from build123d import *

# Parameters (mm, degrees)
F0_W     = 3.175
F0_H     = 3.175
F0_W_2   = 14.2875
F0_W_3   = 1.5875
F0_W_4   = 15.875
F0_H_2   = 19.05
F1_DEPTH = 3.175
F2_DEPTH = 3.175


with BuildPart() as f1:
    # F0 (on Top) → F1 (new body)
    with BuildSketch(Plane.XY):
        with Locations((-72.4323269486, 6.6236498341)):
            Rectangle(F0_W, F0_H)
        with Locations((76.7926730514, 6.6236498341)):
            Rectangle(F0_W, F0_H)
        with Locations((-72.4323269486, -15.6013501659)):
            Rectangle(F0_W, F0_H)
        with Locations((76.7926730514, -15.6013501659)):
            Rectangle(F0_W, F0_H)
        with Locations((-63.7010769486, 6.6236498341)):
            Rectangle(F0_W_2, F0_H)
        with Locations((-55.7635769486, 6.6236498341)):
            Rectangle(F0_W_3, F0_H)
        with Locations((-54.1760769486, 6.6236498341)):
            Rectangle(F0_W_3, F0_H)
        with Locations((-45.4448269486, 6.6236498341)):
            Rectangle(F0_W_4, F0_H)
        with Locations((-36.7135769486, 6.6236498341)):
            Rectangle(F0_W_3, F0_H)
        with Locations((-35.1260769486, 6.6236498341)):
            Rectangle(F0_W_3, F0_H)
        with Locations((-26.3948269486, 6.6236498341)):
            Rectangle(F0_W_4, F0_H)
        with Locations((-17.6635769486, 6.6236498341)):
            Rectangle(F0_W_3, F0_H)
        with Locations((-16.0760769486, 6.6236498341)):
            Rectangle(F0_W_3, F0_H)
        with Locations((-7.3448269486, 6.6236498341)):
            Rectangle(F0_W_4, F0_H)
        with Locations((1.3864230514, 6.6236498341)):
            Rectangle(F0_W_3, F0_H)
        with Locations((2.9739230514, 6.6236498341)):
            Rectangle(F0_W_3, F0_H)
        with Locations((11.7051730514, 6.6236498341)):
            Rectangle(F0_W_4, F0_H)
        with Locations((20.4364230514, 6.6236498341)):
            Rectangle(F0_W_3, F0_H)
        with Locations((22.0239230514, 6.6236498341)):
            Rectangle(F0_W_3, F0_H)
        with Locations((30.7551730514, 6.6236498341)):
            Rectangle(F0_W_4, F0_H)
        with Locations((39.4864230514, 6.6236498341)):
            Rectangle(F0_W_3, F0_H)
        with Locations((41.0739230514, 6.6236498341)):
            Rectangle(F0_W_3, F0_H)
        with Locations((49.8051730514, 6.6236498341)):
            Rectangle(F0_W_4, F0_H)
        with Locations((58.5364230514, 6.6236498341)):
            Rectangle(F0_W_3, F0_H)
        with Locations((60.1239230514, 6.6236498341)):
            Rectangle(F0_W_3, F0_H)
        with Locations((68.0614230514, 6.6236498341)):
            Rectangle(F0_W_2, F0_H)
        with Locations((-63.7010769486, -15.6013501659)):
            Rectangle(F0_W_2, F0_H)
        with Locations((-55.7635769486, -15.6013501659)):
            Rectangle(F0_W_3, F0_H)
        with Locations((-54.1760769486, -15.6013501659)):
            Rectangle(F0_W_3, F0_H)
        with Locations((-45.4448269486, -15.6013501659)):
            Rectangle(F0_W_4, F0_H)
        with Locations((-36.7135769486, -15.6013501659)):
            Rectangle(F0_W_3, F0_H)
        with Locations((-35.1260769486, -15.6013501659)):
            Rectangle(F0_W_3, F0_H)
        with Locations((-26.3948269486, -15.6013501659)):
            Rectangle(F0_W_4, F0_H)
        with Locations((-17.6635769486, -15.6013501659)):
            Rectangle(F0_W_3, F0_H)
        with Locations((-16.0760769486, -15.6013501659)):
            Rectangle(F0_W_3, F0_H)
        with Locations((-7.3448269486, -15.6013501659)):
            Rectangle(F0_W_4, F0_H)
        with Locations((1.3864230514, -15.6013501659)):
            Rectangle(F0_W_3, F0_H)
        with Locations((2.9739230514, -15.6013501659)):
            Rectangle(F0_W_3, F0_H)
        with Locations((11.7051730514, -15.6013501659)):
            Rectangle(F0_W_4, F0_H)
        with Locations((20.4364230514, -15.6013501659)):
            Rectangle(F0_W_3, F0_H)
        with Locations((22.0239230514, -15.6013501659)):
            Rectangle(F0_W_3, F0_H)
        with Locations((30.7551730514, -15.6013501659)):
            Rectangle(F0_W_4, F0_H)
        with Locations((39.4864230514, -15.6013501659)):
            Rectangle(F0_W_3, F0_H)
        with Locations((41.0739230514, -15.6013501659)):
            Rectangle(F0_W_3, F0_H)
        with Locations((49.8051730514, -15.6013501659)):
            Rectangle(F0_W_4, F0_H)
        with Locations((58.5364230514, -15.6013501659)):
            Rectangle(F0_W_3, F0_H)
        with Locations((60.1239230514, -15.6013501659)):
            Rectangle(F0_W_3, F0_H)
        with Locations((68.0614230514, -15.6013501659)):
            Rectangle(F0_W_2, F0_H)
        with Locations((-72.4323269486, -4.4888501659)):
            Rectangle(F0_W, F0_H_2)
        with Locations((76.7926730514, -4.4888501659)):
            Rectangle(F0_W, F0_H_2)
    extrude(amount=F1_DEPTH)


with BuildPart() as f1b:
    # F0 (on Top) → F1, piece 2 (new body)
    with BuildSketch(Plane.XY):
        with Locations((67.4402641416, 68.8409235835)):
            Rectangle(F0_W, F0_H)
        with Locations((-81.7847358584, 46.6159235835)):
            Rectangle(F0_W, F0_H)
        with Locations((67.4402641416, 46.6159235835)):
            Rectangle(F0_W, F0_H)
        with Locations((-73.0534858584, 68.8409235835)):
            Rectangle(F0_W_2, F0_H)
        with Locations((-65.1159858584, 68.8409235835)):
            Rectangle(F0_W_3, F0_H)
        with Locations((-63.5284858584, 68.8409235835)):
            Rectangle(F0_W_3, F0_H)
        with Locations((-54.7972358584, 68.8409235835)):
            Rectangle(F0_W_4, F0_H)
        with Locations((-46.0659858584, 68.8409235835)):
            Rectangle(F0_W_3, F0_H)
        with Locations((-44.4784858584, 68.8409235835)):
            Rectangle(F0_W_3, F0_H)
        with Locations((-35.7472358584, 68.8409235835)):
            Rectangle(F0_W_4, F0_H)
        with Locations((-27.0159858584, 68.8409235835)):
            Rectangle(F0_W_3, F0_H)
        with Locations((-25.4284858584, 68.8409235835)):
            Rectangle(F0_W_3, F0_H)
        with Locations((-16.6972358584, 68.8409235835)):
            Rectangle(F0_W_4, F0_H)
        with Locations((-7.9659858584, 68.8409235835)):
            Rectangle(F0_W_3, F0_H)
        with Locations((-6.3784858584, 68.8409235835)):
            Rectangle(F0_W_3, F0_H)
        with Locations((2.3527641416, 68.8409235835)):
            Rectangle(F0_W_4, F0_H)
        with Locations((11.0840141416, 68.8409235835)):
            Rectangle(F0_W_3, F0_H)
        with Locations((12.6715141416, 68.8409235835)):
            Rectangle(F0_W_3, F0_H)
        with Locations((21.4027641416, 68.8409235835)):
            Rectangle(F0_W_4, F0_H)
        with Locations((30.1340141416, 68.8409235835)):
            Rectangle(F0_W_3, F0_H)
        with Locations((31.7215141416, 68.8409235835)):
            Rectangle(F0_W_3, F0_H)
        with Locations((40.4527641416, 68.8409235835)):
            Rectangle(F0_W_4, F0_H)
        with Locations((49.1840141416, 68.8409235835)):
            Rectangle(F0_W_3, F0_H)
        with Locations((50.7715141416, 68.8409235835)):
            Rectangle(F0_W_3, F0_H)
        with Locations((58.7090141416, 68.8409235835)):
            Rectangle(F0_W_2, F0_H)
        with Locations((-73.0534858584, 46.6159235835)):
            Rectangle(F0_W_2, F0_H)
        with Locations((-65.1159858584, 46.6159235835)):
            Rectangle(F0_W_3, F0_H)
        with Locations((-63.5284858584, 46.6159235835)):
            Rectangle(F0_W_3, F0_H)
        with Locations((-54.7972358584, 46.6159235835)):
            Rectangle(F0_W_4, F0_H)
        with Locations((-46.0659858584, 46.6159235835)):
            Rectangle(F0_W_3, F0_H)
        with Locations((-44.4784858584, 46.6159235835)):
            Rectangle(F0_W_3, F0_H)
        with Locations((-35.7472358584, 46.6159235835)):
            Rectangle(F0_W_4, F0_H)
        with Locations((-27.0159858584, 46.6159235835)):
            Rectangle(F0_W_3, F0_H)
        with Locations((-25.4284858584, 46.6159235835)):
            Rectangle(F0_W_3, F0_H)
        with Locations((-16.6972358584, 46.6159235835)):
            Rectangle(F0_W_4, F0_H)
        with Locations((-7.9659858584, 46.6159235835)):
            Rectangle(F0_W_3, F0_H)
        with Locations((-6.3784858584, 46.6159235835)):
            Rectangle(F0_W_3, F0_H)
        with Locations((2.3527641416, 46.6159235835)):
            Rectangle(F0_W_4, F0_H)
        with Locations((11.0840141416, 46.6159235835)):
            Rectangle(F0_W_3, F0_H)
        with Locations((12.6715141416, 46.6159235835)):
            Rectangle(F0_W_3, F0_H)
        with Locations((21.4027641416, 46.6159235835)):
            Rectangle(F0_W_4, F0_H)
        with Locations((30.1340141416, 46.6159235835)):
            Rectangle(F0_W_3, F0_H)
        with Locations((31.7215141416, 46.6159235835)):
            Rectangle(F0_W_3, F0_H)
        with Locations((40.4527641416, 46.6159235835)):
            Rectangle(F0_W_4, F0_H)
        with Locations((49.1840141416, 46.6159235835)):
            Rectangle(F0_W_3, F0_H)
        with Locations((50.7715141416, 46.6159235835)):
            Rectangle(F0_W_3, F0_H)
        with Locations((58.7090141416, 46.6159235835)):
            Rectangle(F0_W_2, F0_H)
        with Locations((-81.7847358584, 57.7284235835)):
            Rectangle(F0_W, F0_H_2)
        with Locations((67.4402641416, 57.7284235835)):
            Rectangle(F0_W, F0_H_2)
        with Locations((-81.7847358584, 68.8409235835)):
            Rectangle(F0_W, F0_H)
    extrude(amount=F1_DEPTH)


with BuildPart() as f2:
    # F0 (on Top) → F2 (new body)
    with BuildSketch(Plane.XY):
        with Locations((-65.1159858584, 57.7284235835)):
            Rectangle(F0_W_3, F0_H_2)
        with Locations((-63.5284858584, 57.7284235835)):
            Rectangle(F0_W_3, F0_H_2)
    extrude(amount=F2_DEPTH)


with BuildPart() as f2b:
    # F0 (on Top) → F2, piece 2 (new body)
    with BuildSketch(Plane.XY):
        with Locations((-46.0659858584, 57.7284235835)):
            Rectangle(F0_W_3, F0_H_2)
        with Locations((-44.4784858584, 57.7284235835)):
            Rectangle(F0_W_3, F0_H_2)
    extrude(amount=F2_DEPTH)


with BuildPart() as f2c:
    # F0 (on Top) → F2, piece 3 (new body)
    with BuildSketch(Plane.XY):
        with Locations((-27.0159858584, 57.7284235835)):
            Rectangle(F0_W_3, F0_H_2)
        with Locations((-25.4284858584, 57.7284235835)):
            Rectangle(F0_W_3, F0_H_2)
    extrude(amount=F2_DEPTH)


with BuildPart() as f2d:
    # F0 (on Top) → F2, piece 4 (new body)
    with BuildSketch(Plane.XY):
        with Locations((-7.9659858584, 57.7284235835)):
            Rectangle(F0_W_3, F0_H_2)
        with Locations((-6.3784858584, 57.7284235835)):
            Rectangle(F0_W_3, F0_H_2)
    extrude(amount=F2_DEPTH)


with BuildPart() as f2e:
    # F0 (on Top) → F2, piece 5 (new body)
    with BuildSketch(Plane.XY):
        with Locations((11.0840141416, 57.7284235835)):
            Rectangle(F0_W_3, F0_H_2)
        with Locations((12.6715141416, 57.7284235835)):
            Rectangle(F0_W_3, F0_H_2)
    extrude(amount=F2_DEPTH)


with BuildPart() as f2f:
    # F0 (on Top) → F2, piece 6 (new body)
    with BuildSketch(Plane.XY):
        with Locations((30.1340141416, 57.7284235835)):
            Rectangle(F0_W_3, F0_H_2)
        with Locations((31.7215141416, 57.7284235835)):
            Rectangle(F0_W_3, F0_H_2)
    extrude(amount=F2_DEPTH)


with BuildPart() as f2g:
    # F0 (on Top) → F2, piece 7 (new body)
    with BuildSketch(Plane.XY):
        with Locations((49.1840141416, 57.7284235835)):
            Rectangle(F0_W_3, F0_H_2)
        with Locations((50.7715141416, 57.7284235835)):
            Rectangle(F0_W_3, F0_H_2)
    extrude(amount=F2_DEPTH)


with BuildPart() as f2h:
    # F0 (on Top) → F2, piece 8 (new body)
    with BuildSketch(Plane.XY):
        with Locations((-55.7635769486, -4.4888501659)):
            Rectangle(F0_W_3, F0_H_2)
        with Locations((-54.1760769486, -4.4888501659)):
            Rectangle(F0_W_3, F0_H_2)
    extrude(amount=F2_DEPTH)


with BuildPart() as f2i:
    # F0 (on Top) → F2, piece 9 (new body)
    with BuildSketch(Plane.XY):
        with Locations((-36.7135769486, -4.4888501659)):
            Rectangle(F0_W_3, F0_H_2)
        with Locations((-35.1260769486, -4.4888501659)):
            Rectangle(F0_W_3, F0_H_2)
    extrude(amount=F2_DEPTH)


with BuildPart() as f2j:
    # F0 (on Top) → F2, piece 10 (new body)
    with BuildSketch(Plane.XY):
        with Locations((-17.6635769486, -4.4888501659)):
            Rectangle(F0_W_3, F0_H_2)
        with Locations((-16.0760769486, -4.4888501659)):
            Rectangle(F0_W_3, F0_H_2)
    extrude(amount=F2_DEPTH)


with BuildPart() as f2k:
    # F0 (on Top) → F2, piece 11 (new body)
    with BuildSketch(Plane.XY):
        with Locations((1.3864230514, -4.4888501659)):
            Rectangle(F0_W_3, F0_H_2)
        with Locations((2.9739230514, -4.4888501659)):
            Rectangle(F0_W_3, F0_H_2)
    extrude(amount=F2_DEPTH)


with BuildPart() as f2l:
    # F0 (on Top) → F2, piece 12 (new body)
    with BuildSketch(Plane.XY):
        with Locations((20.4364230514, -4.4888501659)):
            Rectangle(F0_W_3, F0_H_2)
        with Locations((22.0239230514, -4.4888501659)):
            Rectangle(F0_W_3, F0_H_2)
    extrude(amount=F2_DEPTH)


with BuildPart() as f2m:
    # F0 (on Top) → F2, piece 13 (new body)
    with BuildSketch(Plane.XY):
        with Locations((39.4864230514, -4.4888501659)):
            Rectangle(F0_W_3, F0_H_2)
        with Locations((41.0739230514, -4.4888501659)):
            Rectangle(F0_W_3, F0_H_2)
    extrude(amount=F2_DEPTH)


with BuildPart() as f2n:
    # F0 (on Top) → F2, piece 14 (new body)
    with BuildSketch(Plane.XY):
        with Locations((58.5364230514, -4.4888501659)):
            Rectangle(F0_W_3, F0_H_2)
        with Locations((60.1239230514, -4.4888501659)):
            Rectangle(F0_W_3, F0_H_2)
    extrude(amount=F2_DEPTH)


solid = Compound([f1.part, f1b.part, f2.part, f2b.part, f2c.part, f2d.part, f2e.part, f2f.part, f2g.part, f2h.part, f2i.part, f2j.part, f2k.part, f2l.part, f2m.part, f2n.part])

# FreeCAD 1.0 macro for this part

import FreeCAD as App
import Part
import Sketcher
Q = App.Units.Quantity


def add_polygon(sketch, points):
    """Adds a closed chain of lines whose ends are joined by coincident constraints."""
    first, n = sketch.GeometryCount, len(points)
    for a, b in zip(points, points[1:] + points[:1]):
        sketch.addGeometry(Part.LineSegment(App.Vector(*a, 0), App.Vector(*b, 0)), False)
    for i in range(n):
        sketch.addConstraint(Sketcher.Constraint("Coincident", first + i, 2, first + (i + 1) % n, 1))

doc = App.newDocument("Part")
body = doc.addObject("PartDesign::Body", "Body")

# Sketch on XY plane
sketch1 = body.newObject("Sketcher::SketchObject", "Sketch")
sketch1.AttachmentSupport = (doc.getObject("XY_Plane"), [""])
sketch1.MapMode = "FlatFace"
add_polygon(sketch1, [(-74.019827, 8.21115), (-74.019827, -17.18885), (78.380173, -17.18885), (78.380173, 8.21115)])  # lines 0-3
add_polygon(sketch1, [(75.205173, -14.01385), (-70.844827, -14.01385), (-70.844827, 5.03615), (75.205173, 5.03615)])  # lines 4-7
sketch1.addConstraint([
    Sketcher.Constraint("Vertical", 0),
    Sketcher.Constraint("Horizontal", 1),
    Sketcher.Constraint("Vertical", 2),
    Sketcher.Constraint("Horizontal", 3),
    Sketcher.Constraint("Horizontal", 4),
    Sketcher.Constraint("Vertical", 5),
    Sketcher.Constraint("Horizontal", 6),
    Sketcher.Constraint("Vertical", 7),
    Sketcher.Constraint("DistanceX", 1, 1, 1, 2, Q("6 in")),
    Sketcher.Constraint("DistanceY", 0, 2, 0, 1, Q("1 in")),
    Sketcher.Constraint("DistanceX", 4, 2, 4, 1, Q("5.75 in")),
    Sketcher.Constraint("DistanceY", 5, 1, 5, 2, Q("0.75 in")),
    Sketcher.Constraint("DistanceX", 0, 2, 4, 2, Q("0.125 in")),
    Sketcher.Constraint("DistanceY", 0, 2, 4, 2, Q("0.125 in")),
    Sketcher.Constraint("DistanceY", 0, 2, -1, 1, Q("17.18885 mm")),
    Sketcher.Constraint("DistanceX", 0, 2, -1, 1, Q("74.019827 mm")),
])
pad1 = body.newObject("PartDesign::Pad", "Pad")
pad1.Profile = sketch1
pad1.Length = Q("0.125 in")
body2 = doc.addObject("PartDesign::Body", "Body001")

# Sketch on XY plane
sketch2 = body2.newObject("Sketcher::SketchObject", "Sketch001")
sketch2.AttachmentSupport = (doc.getObject("XY_Plane001"), [""])
sketch2.MapMode = "FlatFace"
add_polygon(sketch2, [(69.027764, 70.428424), (-83.372236, 70.428424), (-83.372236, 45.028424), (69.027764, 45.028424)])  # lines 0-3
add_polygon(sketch2, [(-80.197236, 48.203424), (-80.197236, 67.253424), (65.852764, 67.253424), (65.852764, 48.203424)])  # lines 4-7
sketch2.addConstraint([
    Sketcher.Constraint("Horizontal", 0),
    Sketcher.Constraint("Vertical", 1),
    Sketcher.Constraint("Horizontal", 2),
    Sketcher.Constraint("Vertical", 3),
    Sketcher.Constraint("Vertical", 4),
    Sketcher.Constraint("Horizontal", 5),
    Sketcher.Constraint("Vertical", 6),
    Sketcher.Constraint("Horizontal", 7),
    Sketcher.Constraint("DistanceX", 0, 2, 0, 1, Q("6 in")),
    Sketcher.Constraint("DistanceY", 1, 2, 1, 1, Q("1 in")),
    Sketcher.Constraint("DistanceX", 5, 1, 5, 2, Q("5.75 in")),
    Sketcher.Constraint("DistanceY", 4, 1, 4, 2, Q("0.75 in")),
    Sketcher.Constraint("DistanceX", 0, 2, 4, 2, Q("0.125 in")),
    Sketcher.Constraint("DistanceY", 4, 2, 0, 2, Q("0.125 in")),
    Sketcher.Constraint("DistanceX", 0, 2, -1, 1, Q("83.372236 mm")),
    Sketcher.Constraint("DistanceY", -1, 1, 0, 2, Q("70.428424 mm")),
])
pad2 = body2.newObject("PartDesign::Pad", "Pad001")
pad2.Profile = sketch2
pad2.Length = Q("0.125 in")
body3 = doc.addObject("PartDesign::Body", "Body002")

# Sketch on XY plane
sketch3 = body3.newObject("Sketcher::SketchObject", "Sketch002")
sketch3.AttachmentSupport = (doc.getObject("XY_Plane002"), [""])
sketch3.MapMode = "FlatFace"
add_polygon(sketch3, [(-65.909736, 67.253424), (-65.909736, 48.203424), (-62.734736, 48.203424), (-62.734736, 67.253424)])  # lines 0-3
sketch3.addConstraint([
    Sketcher.Constraint("Vertical", 0),
    Sketcher.Constraint("Horizontal", 1),
    Sketcher.Constraint("Vertical", 2),
    Sketcher.Constraint("Horizontal", 3),
    Sketcher.Constraint("DistanceY", 0, 2, 0, 1, Q("0.75 in")),
    Sketcher.Constraint("DistanceX", 1, 1, 1, 2, Q("0.125 in")),
    Sketcher.Constraint("DistanceX", 0, 2, -1, 1, Q("65.909736 mm")),
    Sketcher.Constraint("DistanceY", -1, 1, 0, 2, Q("48.203424 mm")),
])
pad3 = body3.newObject("PartDesign::Pad", "Pad002")
pad3.Profile = sketch3
pad3.Length = Q("0.125 in")
body4 = doc.addObject("PartDesign::Body", "Body003")

# Sketch on XY plane
sketch4 = body4.newObject("Sketcher::SketchObject", "Sketch003")
sketch4.AttachmentSupport = (doc.getObject("XY_Plane003"), [""])
sketch4.MapMode = "FlatFace"
add_polygon(sketch4, [(-46.859736, 67.253424), (-46.859736, 48.203424), (-43.684736, 48.203424), (-43.684736, 67.253424)])  # lines 0-3
sketch4.addConstraint([
    Sketcher.Constraint("Vertical", 0),
    Sketcher.Constraint("Horizontal", 1),
    Sketcher.Constraint("Vertical", 2),
    Sketcher.Constraint("Horizontal", 3),
    Sketcher.Constraint("DistanceY", 0, 2, 0, 1, Q("0.75 in")),
    Sketcher.Constraint("DistanceX", 1, 1, 1, 2, Q("0.125 in")),
    Sketcher.Constraint("DistanceX", 0, 2, -1, 1, Q("46.859736 mm")),
    Sketcher.Constraint("DistanceY", -1, 1, 0, 2, Q("48.203424 mm")),
])
pad4 = body4.newObject("PartDesign::Pad", "Pad003")
pad4.Profile = sketch4
pad4.Length = Q("0.125 in")
body5 = doc.addObject("PartDesign::Body", "Body004")

# Sketch on XY plane
sketch5 = body5.newObject("Sketcher::SketchObject", "Sketch004")
sketch5.AttachmentSupport = (doc.getObject("XY_Plane004"), [""])
sketch5.MapMode = "FlatFace"
add_polygon(sketch5, [(-27.809736, 67.253424), (-27.809736, 48.203424), (-24.634736, 48.203424), (-24.634736, 67.253424)])  # lines 0-3
sketch5.addConstraint([
    Sketcher.Constraint("Vertical", 0),
    Sketcher.Constraint("Horizontal", 1),
    Sketcher.Constraint("Vertical", 2),
    Sketcher.Constraint("Horizontal", 3),
    Sketcher.Constraint("DistanceY", 0, 2, 0, 1, Q("0.75 in")),
    Sketcher.Constraint("DistanceX", 1, 1, 1, 2, Q("0.125 in")),
    Sketcher.Constraint("DistanceX", 0, 2, -1, 1, Q("27.809736 mm")),
    Sketcher.Constraint("DistanceY", -1, 1, 0, 2, Q("48.203424 mm")),
])
pad5 = body5.newObject("PartDesign::Pad", "Pad004")
pad5.Profile = sketch5
pad5.Length = Q("0.125 in")
body6 = doc.addObject("PartDesign::Body", "Body005")

# Sketch on XY plane
sketch6 = body6.newObject("Sketcher::SketchObject", "Sketch005")
sketch6.AttachmentSupport = (doc.getObject("XY_Plane005"), [""])
sketch6.MapMode = "FlatFace"
add_polygon(sketch6, [(-8.759736, 67.253424), (-8.759736, 48.203424), (-5.584736, 48.203424), (-5.584736, 67.253424)])  # lines 0-3
sketch6.addConstraint([
    Sketcher.Constraint("Vertical", 0),
    Sketcher.Constraint("Horizontal", 1),
    Sketcher.Constraint("Vertical", 2),
    Sketcher.Constraint("Horizontal", 3),
    Sketcher.Constraint("DistanceY", 0, 2, 0, 1, Q("0.75 in")),
    Sketcher.Constraint("DistanceX", 1, 1, 1, 2, Q("0.125 in")),
    Sketcher.Constraint("DistanceX", 0, 2, -1, 1, Q("8.759736 mm")),
    Sketcher.Constraint("DistanceY", -1, 1, 0, 2, Q("48.203424 mm")),
])
pad6 = body6.newObject("PartDesign::Pad", "Pad005")
pad6.Profile = sketch6
pad6.Length = Q("0.125 in")
body7 = doc.addObject("PartDesign::Body", "Body006")

# Sketch on XY plane
sketch7 = body7.newObject("Sketcher::SketchObject", "Sketch006")
sketch7.AttachmentSupport = (doc.getObject("XY_Plane006"), [""])
sketch7.MapMode = "FlatFace"
add_polygon(sketch7, [(10.290264, 67.253424), (10.290264, 48.203424), (13.465264, 48.203424), (13.465264, 67.253424)])  # lines 0-3
sketch7.addConstraint([
    Sketcher.Constraint("Vertical", 0),
    Sketcher.Constraint("Horizontal", 1),
    Sketcher.Constraint("Vertical", 2),
    Sketcher.Constraint("Horizontal", 3),
    Sketcher.Constraint("DistanceY", 0, 2, 0, 1, Q("0.75 in")),
    Sketcher.Constraint("DistanceX", 1, 1, 1, 2, Q("0.125 in")),
    Sketcher.Constraint("DistanceX", -1, 1, 0, 2, Q("10.290264 mm")),
    Sketcher.Constraint("DistanceY", -1, 1, 0, 2, Q("48.203424 mm")),
])
pad7 = body7.newObject("PartDesign::Pad", "Pad006")
pad7.Profile = sketch7
pad7.Length = Q("0.125 in")
body8 = doc.addObject("PartDesign::Body", "Body007")

# Sketch on XY plane
sketch8 = body8.newObject("Sketcher::SketchObject", "Sketch007")
sketch8.AttachmentSupport = (doc.getObject("XY_Plane007"), [""])
sketch8.MapMode = "FlatFace"
add_polygon(sketch8, [(29.340264, 67.253424), (29.340264, 48.203424), (32.515264, 48.203424), (32.515264, 67.253424)])  # lines 0-3
sketch8.addConstraint([
    Sketcher.Constraint("Vertical", 0),
    Sketcher.Constraint("Horizontal", 1),
    Sketcher.Constraint("Vertical", 2),
    Sketcher.Constraint("Horizontal", 3),
    Sketcher.Constraint("DistanceY", 0, 2, 0, 1, Q("0.75 in")),
    Sketcher.Constraint("DistanceX", 1, 1, 1, 2, Q("0.125 in")),
    Sketcher.Constraint("DistanceX", -1, 1, 0, 2, Q("29.340264 mm")),
    Sketcher.Constraint("DistanceY", -1, 1, 0, 2, Q("48.203424 mm")),
])
pad8 = body8.newObject("PartDesign::Pad", "Pad007")
pad8.Profile = sketch8
pad8.Length = Q("0.125 in")
body9 = doc.addObject("PartDesign::Body", "Body008")

# Sketch on XY plane
sketch9 = body9.newObject("Sketcher::SketchObject", "Sketch008")
sketch9.AttachmentSupport = (doc.getObject("XY_Plane008"), [""])
sketch9.MapMode = "FlatFace"
add_polygon(sketch9, [(48.390264, 67.253424), (48.390264, 48.203424), (51.565264, 48.203424), (51.565264, 67.253424)])  # lines 0-3
sketch9.addConstraint([
    Sketcher.Constraint("Vertical", 0),
    Sketcher.Constraint("Horizontal", 1),
    Sketcher.Constraint("Vertical", 2),
    Sketcher.Constraint("Horizontal", 3),
    Sketcher.Constraint("DistanceY", 0, 2, 0, 1, Q("0.75 in")),
    Sketcher.Constraint("DistanceX", 1, 1, 1, 2, Q("0.125 in")),
    Sketcher.Constraint("DistanceX", -1, 1, 0, 2, Q("48.390264 mm")),
    Sketcher.Constraint("DistanceY", -1, 1, 0, 2, Q("48.203424 mm")),
])
pad9 = body9.newObject("PartDesign::Pad", "Pad008")
pad9.Profile = sketch9
pad9.Length = Q("0.125 in")
body10 = doc.addObject("PartDesign::Body", "Body009")

# Sketch on XY plane
sketch10 = body10.newObject("Sketcher::SketchObject", "Sketch009")
sketch10.AttachmentSupport = (doc.getObject("XY_Plane009"), [""])
sketch10.MapMode = "FlatFace"
add_polygon(sketch10, [(-56.557327, 5.03615), (-56.557327, -14.01385), (-53.382327, -14.01385), (-53.382327, 5.03615)])  # lines 0-3
sketch10.addConstraint([
    Sketcher.Constraint("Vertical", 0),
    Sketcher.Constraint("Horizontal", 1),
    Sketcher.Constraint("Vertical", 2),
    Sketcher.Constraint("Horizontal", 3),
    Sketcher.Constraint("DistanceY", 0, 2, 0, 1, Q("0.75 in")),
    Sketcher.Constraint("DistanceX", 1, 1, 1, 2, Q("0.125 in")),
    Sketcher.Constraint("DistanceY", 0, 2, -1, 1, Q("14.01385 mm")),
    Sketcher.Constraint("DistanceX", 0, 2, -1, 1, Q("56.557327 mm")),
])
pad10 = body10.newObject("PartDesign::Pad", "Pad009")
pad10.Profile = sketch10
pad10.Length = Q("0.125 in")
body11 = doc.addObject("PartDesign::Body", "Body010")

# Sketch on XY plane
sketch11 = body11.newObject("Sketcher::SketchObject", "Sketch010")
sketch11.AttachmentSupport = (doc.getObject("XY_Plane010"), [""])
sketch11.MapMode = "FlatFace"
add_polygon(sketch11, [(-37.507327, 5.03615), (-37.507327, -14.01385), (-34.332327, -14.01385), (-34.332327, 5.03615)])  # lines 0-3
sketch11.addConstraint([
    Sketcher.Constraint("Vertical", 0),
    Sketcher.Constraint("Horizontal", 1),
    Sketcher.Constraint("Vertical", 2),
    Sketcher.Constraint("Horizontal", 3),
    Sketcher.Constraint("DistanceY", 0, 2, 0, 1, Q("0.75 in")),
    Sketcher.Constraint("DistanceX", 1, 1, 1, 2, Q("0.125 in")),
    Sketcher.Constraint("DistanceY", 0, 2, -1, 1, Q("14.01385 mm")),
    Sketcher.Constraint("DistanceX", 0, 2, -1, 1, Q("37.507327 mm")),
])
pad11 = body11.newObject("PartDesign::Pad", "Pad010")
pad11.Profile = sketch11
pad11.Length = Q("0.125 in")
body12 = doc.addObject("PartDesign::Body", "Body011")

# Sketch on XY plane
sketch12 = body12.newObject("Sketcher::SketchObject", "Sketch011")
sketch12.AttachmentSupport = (doc.getObject("XY_Plane011"), [""])
sketch12.MapMode = "FlatFace"
add_polygon(sketch12, [(-18.457327, 5.03615), (-18.457327, -14.01385), (-15.282327, -14.01385), (-15.282327, 5.03615)])  # lines 0-3
sketch12.addConstraint([
    Sketcher.Constraint("Vertical", 0),
    Sketcher.Constraint("Horizontal", 1),
    Sketcher.Constraint("Vertical", 2),
    Sketcher.Constraint("Horizontal", 3),
    Sketcher.Constraint("DistanceY", 0, 2, 0, 1, Q("0.75 in")),
    Sketcher.Constraint("DistanceX", 1, 1, 1, 2, Q("0.125 in")),
    Sketcher.Constraint("DistanceY", 0, 2, -1, 1, Q("14.01385 mm")),
    Sketcher.Constraint("DistanceX", 0, 2, -1, 1, Q("18.457327 mm")),
])
pad12 = body12.newObject("PartDesign::Pad", "Pad011")
pad12.Profile = sketch12
pad12.Length = Q("0.125 in")
body13 = doc.addObject("PartDesign::Body", "Body012")

# Sketch on XY plane
sketch13 = body13.newObject("Sketcher::SketchObject", "Sketch012")
sketch13.AttachmentSupport = (doc.getObject("XY_Plane012"), [""])
sketch13.MapMode = "FlatFace"
add_polygon(sketch13, [(0.592673, 5.03615), (0.592673, -14.01385), (3.767673, -14.01385), (3.767673, 5.03615)])  # lines 0-3
sketch13.addConstraint([
    Sketcher.Constraint("Vertical", 0),
    Sketcher.Constraint("Horizontal", 1),
    Sketcher.Constraint("Vertical", 2),
    Sketcher.Constraint("Horizontal", 3),
    Sketcher.Constraint("DistanceY", 0, 2, 0, 1, Q("0.75 in")),
    Sketcher.Constraint("DistanceX", 1, 1, 1, 2, Q("0.125 in")),
    Sketcher.Constraint("DistanceY", 0, 2, -1, 1, Q("14.01385 mm")),
    Sketcher.Constraint("DistanceX", -1, 1, 0, 2, Q("0.592673 mm")),
])
pad13 = body13.newObject("PartDesign::Pad", "Pad012")
pad13.Profile = sketch13
pad13.Length = Q("0.125 in")
body14 = doc.addObject("PartDesign::Body", "Body013")

# Sketch on XY plane
sketch14 = body14.newObject("Sketcher::SketchObject", "Sketch013")
sketch14.AttachmentSupport = (doc.getObject("XY_Plane013"), [""])
sketch14.MapMode = "FlatFace"
add_polygon(sketch14, [(19.642673, 5.03615), (19.642673, -14.01385), (22.817673, -14.01385), (22.817673, 5.03615)])  # lines 0-3
sketch14.addConstraint([
    Sketcher.Constraint("Vertical", 0),
    Sketcher.Constraint("Horizontal", 1),
    Sketcher.Constraint("Vertical", 2),
    Sketcher.Constraint("Horizontal", 3),
    Sketcher.Constraint("DistanceY", 0, 2, 0, 1, Q("0.75 in")),
    Sketcher.Constraint("DistanceX", 1, 1, 1, 2, Q("0.125 in")),
    Sketcher.Constraint("DistanceY", 0, 2, -1, 1, Q("14.01385 mm")),
    Sketcher.Constraint("DistanceX", -1, 1, 0, 2, Q("19.642673 mm")),
])
pad14 = body14.newObject("PartDesign::Pad", "Pad013")
pad14.Profile = sketch14
pad14.Length = Q("0.125 in")
body15 = doc.addObject("PartDesign::Body", "Body014")

# Sketch on XY plane
sketch15 = body15.newObject("Sketcher::SketchObject", "Sketch014")
sketch15.AttachmentSupport = (doc.getObject("XY_Plane014"), [""])
sketch15.MapMode = "FlatFace"
add_polygon(sketch15, [(38.692673, 5.03615), (38.692673, -14.01385), (41.867673, -14.01385), (41.867673, 5.03615)])  # lines 0-3
sketch15.addConstraint([
    Sketcher.Constraint("Vertical", 0),
    Sketcher.Constraint("Horizontal", 1),
    Sketcher.Constraint("Vertical", 2),
    Sketcher.Constraint("Horizontal", 3),
    Sketcher.Constraint("DistanceY", 0, 2, 0, 1, Q("0.75 in")),
    Sketcher.Constraint("DistanceX", 1, 1, 1, 2, Q("0.125 in")),
    Sketcher.Constraint("DistanceY", 0, 2, -1, 1, Q("14.01385 mm")),
    Sketcher.Constraint("DistanceX", -1, 1, 0, 2, Q("38.692673 mm")),
])
pad15 = body15.newObject("PartDesign::Pad", "Pad014")
pad15.Profile = sketch15
pad15.Length = Q("0.125 in")
body16 = doc.addObject("PartDesign::Body", "Body015")

# Sketch on XY plane
sketch16 = body16.newObject("Sketcher::SketchObject", "Sketch015")
sketch16.AttachmentSupport = (doc.getObject("XY_Plane015"), [""])
sketch16.MapMode = "FlatFace"
add_polygon(sketch16, [(57.742673, 5.03615), (57.742673, -14.01385), (60.917673, -14.01385), (60.917673, 5.03615)])  # lines 0-3
sketch16.addConstraint([
    Sketcher.Constraint("Vertical", 0),
    Sketcher.Constraint("Horizontal", 1),
    Sketcher.Constraint("Vertical", 2),
    Sketcher.Constraint("Horizontal", 3),
    Sketcher.Constraint("DistanceY", 0, 2, 0, 1, Q("0.75 in")),
    Sketcher.Constraint("DistanceX", 1, 1, 1, 2, Q("0.125 in")),
    Sketcher.Constraint("DistanceY", 0, 2, -1, 1, Q("14.01385 mm")),
    Sketcher.Constraint("DistanceX", -1, 1, 0, 2, Q("57.742673 mm")),
])
pad16 = body16.newObject("PartDesign::Pad", "Pad015")
pad16.Profile = sketch16
pad16.Length = Q("0.125 in")

doc.recompute()
